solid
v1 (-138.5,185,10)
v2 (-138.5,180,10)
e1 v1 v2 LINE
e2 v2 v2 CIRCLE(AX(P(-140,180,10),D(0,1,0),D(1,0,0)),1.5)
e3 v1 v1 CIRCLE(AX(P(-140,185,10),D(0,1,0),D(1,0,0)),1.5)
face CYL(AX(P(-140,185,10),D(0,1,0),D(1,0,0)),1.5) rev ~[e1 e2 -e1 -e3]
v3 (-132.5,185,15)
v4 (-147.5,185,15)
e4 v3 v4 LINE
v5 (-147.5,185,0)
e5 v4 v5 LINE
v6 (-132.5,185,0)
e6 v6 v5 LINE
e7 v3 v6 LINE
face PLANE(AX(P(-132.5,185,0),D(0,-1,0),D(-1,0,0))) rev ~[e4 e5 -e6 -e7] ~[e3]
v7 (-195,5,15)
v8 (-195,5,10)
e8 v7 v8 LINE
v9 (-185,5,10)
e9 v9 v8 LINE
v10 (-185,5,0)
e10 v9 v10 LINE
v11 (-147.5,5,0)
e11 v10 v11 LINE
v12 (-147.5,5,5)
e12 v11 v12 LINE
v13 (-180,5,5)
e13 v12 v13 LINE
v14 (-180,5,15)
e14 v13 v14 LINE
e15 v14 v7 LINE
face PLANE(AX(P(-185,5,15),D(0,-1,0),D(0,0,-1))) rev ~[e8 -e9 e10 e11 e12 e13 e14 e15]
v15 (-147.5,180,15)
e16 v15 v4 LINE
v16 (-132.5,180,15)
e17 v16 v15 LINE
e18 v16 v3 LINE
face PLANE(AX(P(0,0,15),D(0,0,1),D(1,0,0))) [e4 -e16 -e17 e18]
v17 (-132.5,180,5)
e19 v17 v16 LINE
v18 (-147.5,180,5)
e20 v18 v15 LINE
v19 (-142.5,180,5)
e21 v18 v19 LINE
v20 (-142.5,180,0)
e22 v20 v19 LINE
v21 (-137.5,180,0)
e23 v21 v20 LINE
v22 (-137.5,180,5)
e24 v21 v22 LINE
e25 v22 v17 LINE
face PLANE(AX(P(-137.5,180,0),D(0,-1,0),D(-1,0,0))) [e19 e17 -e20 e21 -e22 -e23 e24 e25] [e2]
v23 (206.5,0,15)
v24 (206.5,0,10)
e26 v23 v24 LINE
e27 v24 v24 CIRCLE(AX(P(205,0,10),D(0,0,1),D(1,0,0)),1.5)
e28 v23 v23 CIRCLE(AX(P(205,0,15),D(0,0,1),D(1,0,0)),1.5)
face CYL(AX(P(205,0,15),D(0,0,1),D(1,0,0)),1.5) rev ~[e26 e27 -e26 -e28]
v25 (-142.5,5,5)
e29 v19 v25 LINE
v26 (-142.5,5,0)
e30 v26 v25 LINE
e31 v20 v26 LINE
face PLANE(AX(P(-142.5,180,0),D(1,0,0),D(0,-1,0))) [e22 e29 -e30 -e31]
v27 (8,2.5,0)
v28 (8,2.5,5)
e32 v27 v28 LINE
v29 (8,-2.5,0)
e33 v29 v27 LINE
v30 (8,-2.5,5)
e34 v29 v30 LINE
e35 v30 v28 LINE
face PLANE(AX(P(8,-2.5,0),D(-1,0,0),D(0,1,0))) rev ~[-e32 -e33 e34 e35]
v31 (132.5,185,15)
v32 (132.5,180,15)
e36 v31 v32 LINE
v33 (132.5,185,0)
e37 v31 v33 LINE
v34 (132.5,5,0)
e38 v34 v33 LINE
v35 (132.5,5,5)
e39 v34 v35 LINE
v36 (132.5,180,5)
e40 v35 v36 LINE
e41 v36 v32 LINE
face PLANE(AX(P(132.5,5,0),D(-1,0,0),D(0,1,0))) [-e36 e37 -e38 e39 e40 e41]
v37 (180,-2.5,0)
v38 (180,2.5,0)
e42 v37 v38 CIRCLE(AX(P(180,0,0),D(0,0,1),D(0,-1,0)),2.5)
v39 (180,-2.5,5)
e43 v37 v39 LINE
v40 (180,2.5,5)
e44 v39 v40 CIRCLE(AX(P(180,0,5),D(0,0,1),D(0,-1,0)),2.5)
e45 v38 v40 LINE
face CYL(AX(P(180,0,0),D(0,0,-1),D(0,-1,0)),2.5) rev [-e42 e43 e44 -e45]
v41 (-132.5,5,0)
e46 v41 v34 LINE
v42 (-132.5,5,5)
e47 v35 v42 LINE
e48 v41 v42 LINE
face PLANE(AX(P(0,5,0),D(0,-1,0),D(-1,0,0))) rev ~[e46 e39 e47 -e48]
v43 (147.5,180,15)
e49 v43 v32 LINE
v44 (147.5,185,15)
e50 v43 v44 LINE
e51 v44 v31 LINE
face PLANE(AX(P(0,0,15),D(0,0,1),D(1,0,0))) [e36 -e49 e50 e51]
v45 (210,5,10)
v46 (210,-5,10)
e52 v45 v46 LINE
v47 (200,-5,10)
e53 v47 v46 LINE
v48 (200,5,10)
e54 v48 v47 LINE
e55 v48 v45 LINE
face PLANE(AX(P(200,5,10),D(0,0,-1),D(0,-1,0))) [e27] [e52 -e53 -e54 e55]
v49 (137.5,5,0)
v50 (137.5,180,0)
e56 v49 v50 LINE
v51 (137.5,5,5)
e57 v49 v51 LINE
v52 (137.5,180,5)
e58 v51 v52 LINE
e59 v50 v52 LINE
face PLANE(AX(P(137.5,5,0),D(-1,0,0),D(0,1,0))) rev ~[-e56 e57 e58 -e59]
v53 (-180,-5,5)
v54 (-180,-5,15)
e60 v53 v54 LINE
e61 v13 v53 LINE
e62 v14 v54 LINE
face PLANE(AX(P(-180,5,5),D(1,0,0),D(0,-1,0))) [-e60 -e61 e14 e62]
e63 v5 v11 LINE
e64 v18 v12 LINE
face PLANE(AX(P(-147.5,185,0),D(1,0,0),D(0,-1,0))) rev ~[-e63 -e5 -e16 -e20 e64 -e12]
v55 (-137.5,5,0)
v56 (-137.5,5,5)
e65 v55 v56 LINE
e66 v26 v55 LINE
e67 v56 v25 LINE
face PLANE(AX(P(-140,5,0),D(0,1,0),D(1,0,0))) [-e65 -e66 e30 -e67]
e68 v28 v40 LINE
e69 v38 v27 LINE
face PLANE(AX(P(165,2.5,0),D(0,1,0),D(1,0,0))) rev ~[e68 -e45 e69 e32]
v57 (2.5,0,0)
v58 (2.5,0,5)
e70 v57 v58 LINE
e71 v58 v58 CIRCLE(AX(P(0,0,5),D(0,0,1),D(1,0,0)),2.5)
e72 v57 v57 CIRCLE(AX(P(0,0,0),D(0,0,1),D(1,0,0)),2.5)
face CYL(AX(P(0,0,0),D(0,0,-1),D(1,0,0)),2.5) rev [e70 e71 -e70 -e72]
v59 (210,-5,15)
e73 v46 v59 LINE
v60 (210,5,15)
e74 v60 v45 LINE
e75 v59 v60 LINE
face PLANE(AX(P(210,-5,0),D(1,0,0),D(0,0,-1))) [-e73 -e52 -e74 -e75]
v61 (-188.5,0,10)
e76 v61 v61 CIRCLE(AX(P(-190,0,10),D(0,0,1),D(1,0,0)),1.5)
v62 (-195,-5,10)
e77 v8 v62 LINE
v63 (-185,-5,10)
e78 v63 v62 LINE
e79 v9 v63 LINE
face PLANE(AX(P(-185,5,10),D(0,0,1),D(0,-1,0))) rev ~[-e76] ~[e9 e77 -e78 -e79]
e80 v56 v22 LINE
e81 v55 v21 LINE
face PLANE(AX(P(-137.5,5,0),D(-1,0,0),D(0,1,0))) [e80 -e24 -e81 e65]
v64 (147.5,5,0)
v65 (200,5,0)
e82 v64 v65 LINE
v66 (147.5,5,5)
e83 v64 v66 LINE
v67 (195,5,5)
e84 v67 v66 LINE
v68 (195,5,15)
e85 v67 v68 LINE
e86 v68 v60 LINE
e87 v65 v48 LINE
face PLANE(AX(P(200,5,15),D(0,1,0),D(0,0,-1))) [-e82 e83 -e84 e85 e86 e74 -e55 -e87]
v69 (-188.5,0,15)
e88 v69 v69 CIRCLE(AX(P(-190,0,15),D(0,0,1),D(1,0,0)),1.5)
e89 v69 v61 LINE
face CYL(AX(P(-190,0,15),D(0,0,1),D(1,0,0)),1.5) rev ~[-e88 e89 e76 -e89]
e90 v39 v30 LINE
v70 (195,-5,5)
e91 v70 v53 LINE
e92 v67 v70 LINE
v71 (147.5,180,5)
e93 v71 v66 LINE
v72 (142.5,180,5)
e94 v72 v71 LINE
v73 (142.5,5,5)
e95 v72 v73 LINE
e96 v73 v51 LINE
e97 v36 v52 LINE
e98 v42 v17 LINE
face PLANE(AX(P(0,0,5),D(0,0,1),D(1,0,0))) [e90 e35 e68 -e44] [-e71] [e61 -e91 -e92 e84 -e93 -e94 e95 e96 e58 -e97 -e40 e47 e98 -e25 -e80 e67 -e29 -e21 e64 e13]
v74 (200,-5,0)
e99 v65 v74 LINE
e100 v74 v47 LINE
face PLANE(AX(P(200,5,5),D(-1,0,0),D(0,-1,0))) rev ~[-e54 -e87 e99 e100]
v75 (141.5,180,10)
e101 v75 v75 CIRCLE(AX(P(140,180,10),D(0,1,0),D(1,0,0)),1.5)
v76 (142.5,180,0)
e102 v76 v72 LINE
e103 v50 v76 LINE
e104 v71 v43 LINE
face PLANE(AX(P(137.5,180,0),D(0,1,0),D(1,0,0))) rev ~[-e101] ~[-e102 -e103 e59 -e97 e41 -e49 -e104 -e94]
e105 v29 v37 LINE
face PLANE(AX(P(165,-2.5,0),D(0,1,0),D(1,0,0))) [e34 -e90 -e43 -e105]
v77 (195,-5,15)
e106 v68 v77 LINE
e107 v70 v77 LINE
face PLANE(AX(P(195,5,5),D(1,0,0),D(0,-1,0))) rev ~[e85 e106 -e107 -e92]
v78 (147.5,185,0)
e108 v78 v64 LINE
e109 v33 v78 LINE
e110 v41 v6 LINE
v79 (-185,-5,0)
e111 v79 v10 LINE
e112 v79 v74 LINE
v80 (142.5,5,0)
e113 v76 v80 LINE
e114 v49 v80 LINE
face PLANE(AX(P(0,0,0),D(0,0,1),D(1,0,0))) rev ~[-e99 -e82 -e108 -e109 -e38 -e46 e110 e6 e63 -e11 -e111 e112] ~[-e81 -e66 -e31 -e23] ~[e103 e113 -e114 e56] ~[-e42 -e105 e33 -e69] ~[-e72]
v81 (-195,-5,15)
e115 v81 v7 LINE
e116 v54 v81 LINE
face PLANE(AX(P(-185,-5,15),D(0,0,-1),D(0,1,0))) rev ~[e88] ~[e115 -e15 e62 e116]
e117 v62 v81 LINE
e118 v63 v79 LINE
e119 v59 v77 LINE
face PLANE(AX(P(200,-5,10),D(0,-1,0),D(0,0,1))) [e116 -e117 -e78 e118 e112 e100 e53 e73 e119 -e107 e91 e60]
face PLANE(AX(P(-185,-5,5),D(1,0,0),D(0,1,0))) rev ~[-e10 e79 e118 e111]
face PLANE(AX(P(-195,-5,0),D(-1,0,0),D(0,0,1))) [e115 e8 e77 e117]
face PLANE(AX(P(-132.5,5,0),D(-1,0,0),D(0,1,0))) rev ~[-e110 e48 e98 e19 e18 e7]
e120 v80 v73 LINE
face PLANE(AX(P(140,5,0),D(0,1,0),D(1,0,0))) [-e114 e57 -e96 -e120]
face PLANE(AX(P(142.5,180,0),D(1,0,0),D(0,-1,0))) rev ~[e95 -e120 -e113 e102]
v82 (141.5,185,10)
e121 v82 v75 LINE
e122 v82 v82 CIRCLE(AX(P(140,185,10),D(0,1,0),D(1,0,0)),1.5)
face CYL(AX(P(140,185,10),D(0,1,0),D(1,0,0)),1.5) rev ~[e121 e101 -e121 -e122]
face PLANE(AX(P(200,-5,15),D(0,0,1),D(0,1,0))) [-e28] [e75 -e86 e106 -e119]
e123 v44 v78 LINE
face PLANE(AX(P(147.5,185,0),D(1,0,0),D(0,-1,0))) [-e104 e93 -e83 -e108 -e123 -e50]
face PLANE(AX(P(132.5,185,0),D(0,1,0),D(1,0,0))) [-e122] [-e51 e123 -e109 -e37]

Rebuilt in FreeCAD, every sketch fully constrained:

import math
import FreeCAD as App
import Part
import Sketcher

V = App.Vector
Q = App.Units.Quantity


def add_polygon(sketch, points):
    """Adds a closed chain of lines whose ends are joined by coincident constraints."""
    first, n = sketch.GeometryCount, len(points)
    for a, b in zip(points, points[1:] + points[:1]):
        sketch.addGeometry(Part.LineSegment(App.Vector(*a, 0), App.Vector(*b, 0)), False)
    for i in range(n):
        sketch.addConstraint(Sketcher.Constraint("Coincident", first + i, 2, first + (i + 1) % n, 1))

doc = App.newDocument("Part")
body = doc.addObject("PartDesign::Body", "Body")

# Sketch on XY plane
sketch1 = body.newObject("Sketcher::SketchObject", "Sketch")
sketch1.AttachmentSupport = (doc.getObject("XY_Plane"), [""])
sketch1.MapMode = "FlatFace"
sketch1.addGeometry(Part.LineSegment(V(-165, -5, 0), V(180, -5, 0)), False)  # 0
sketch1.addGeometry(Part.ArcOfCircle(Part.Circle(V(180, 0, 0), V(0, 0, 1), 5), math.radians(-90), math.radians(90)), False)  # 1
sketch1.addGeometry(Part.LineSegment(V(180, 5, 0), V(147.5, 5, 0)), False)  # 2
sketch1.addGeometry(Part.LineSegment(V(147.5, 5, 0), V(147.5, 185, 0)), False)  # 3
sketch1.addGeometry(Part.LineSegment(V(147.5, 185, 0), V(132.5, 185, 0)), False)  # 4
sketch1.addGeometry(Part.LineSegment(V(132.5, 185, 0), V(132.5, 5, 0)), False)  # 5
sketch1.addGeometry(Part.LineSegment(V(132.5, 5, 0), V(-132.5, 5, 0)), False)  # 6
sketch1.addGeometry(Part.LineSegment(V(-132.5, 5, 0), V(-132.5, 185, 0)), False)  # 7
sketch1.addGeometry(Part.LineSegment(V(-132.5, 185, 0), V(-147.5, 185, 0)), False)  # 8
sketch1.addGeometry(Part.LineSegment(V(-147.5, 185, 0), V(-147.5, 5, 0)), False)  # 9
sketch1.addGeometry(Part.LineSegment(V(-147.5, 5, 0), V(-165, 5, 0)), False)  # 10
sketch1.addGeometry(Part.ArcOfCircle(Part.Circle(V(-165, 0, 0), V(0, 0, 1), 5), math.radians(90), math.radians(270)), False)  # 11
sketch1.addGeometry(Part.Circle(V(0, 0, 0), V(0, 0, 1), 2.5), False)  # 12
sketch1.addGeometry(Part.LineSegment(V(180, -2.5, 0), V(8, -2.5, 0)), False)  # 13
sketch1.addGeometry(Part.LineSegment(V(8, -2.5, 0), V(8, 2.5, 0)), False)  # 14
sketch1.addGeometry(Part.LineSegment(V(8, 2.5, 0), V(180, 2.5, 0)), False)  # 15
sketch1.addGeometry(Part.ArcOfCircle(Part.Circle(V(180, 0, 0), V(0, 0, 1), 2.5), math.radians(-90), math.radians(90)), False)  # 16
add_polygon(sketch1, [(-137.5, 5), (-142.5, 5), (-142.5, 180), (-137.5, 180)])  # lines 17-20
add_polygon(sketch1, [(142.5, 5), (137.5, 5), (137.5, 180), (142.5, 180)])  # lines 21-24
sketch1.addConstraint(Sketcher.Constraint("Tangent", 0, 2, 1, 1))
sketch1.addConstraint(Sketcher.Constraint("Tangent", 1, 2, 2, 1))
sketch1.addConstraint(Sketcher.Constraint("Coincident", 2, 2, 3, 1))
sketch1.addConstraint(Sketcher.Constraint("Coincident", 3, 2, 4, 1))
sketch1.addConstraint(Sketcher.Constraint("Coincident", 4, 2, 5, 1))
sketch1.addConstraint(Sketcher.Constraint("Coincident", 5, 2, 6, 1))
sketch1.addConstraint(Sketcher.Constraint("Coincident", 6, 2, 7, 1))
sketch1.addConstraint(Sketcher.Constraint("Coincident", 7, 2, 8, 1))
sketch1.addConstraint(Sketcher.Constraint("Coincident", 8, 2, 9, 1))
sketch1.addConstraint(Sketcher.Constraint("Coincident", 9, 2, 10, 1))
sketch1.addConstraint(Sketcher.Constraint("Tangent", 10, 2, 11, 1))
sketch1.addConstraint(Sketcher.Constraint("Tangent", 11, 2, 0, 1))
sketch1.addConstraint(Sketcher.Constraint("Coincident", 13, 2, 14, 1))
sketch1.addConstraint(Sketcher.Constraint("Coincident", 14, 2, 15, 1))
sketch1.addConstraint(Sketcher.Constraint("Tangent", 15, 2, 16, 2))
sketch1.addConstraint(Sketcher.Constraint("Tangent", 16, 1, 13, 1))
sketch1.addConstraint(Sketcher.Constraint("Horizontal", 0))
sketch1.addConstraint(Sketcher.Constraint("Horizontal", 2))
sketch1.addConstraint(Sketcher.Constraint("Vertical", 3))
sketch1.addConstraint(Sketcher.Constraint("Horizontal", 4))
sketch1.addConstraint(Sketcher.Constraint("Vertical", 5))
sketch1.addConstraint(Sketcher.Constraint("Horizontal", 6))
sketch1.addConstraint(Sketcher.Constraint("Vertical", 7))
sketch1.addConstraint(Sketcher.Constraint("Horizontal", 8))
sketch1.addConstraint(Sketcher.Constraint("Vertical", 9))
sketch1.addConstraint(Sketcher.Constraint("Horizontal", 10))
sketch1.addConstraint(Sketcher.Constraint("Horizontal", 13))
sketch1.addConstraint(Sketcher.Constraint("Vertical", 14))
sketch1.addConstraint(Sketcher.Constraint("Horizontal", 15))
sketch1.addConstraint(Sketcher.Constraint("Horizontal", 17))
sketch1.addConstraint(Sketcher.Constraint("Vertical", 18))
sketch1.addConstraint(Sketcher.Constraint("Horizontal", 19))
sketch1.addConstraint(Sketcher.Constraint("Vertical", 20))
sketch1.addConstraint(Sketcher.Constraint("Horizontal", 21))
sketch1.addConstraint(Sketcher.Constraint("Vertical", 22))
sketch1.addConstraint(Sketcher.Constraint("Horizontal", 23))
sketch1.addConstraint(Sketcher.Constraint("Vertical", 24))
sketch1.addConstraint(Sketcher.Constraint("Coincident", 12, 3, -1, 1))
sketch1.addConstraint(Sketcher.Constraint("Coincident", 16, 3, 1, 3))
sketch1.addConstraint(Sketcher.Constraint("Equal", 1, 11))
sketch1.addConstraint(Sketcher.Constraint("Equal", 12, 16))
sketch1.addConstraint(Sketcher.Constraint("Symmetric", 4, 2, 7, 2, -2))
sketch1.addConstraint(Sketcher.Constraint("Symmetric", 20, 2, 21, 2, -2))
sketch1.addConstraint(Sketcher.Constraint("Symmetric", 18, 2, 23, 2, -2))
sketch1.addConstraint(Sketcher.Constraint("PointOnObject", 1, 3, -1))
sketch1.addConstraint(Sketcher.Constraint("Horizontal", 2, 2, 5, 2))
sketch1.addConstraint(Sketcher.Constraint("Horizontal", 10, 2, 17, 2))
sketch1.addConstraint(Sketcher.Constraint("Equal", 4, 8))
sketch1.addConstraint(Sketcher.Constraint("Equal", 23, 14))
sketch1.addConstraint(Sketcher.Constraint("Diameter", 12, Q("5 mm")))
sketch1.addConstraint(Sketcher.Constraint("Radius", 1, Q("5 mm")))
sketch1.addConstraint(Sketcher.Constraint("DistanceX", 4, 2, 4, 1, Q("15 mm")))
sketch1.addConstraint(Sketcher.Constraint("DistanceY", 3, 1, 3, 2, Q("180 mm")))
sketch1.addConstraint(Sketcher.Constraint("DistanceY", 18, 1, 18, 2, Q("175 mm")))
sketch1.addConstraint(Sketcher.Constraint("DistanceX", -1, 1, 1, 3, Q("180 mm")))
sketch1.addConstraint(Sketcher.Constraint("DistanceX", 9, 2, 17, 2, Q("5 mm")))
sketch1.addConstraint(Sketcher.Constraint("DistanceX", 0, 1, 0, 2, Q("345 mm")))
sketch1.addConstraint(Sketcher.Constraint("DistanceX", 6, 2, 6, 1, Q("265 mm")))
sketch1.addConstraint(Sketcher.Constraint("DistanceX", 13, 2, 13, 1, Q("172 mm")))
pad1 = body.newObject("PartDesign::Pad", "Pad")
pad1.Profile = sketch1
pad1.Length = 5

# Sketch on XY plane
sketch2 = body.newObject("Sketcher::SketchObject", "Sketch001")
sketch2.AttachmentSupport = (doc.getObject("XY_Plane"), [""])
sketch2.MapMode = "FlatFace"
sketch2.AttachmentOffset = App.Placement(V(0, 0, 5), App.Rotation())
add_polygon(sketch2, [(-132, 180), (-132, 185), (-148, 185), (-148, 180)])  # lines 0-3
add_polygon(sketch2, [(132, 185), (132, 180), (148, 180), (148, 185)])  # lines 4-7
sketch2.addConstraint(Sketcher.Constraint("Vertical", 0))
sketch2.addConstraint(Sketcher.Constraint("Horizontal", 1))
sketch2.addConstraint(Sketcher.Constraint("Vertical", 2))
sketch2.addConstraint(Sketcher.Constraint("Horizontal", 3))
sketch2.addConstraint(Sketcher.Constraint("Vertical", 4))
sketch2.addConstraint(Sketcher.Constraint("Horizontal", 5))
sketch2.addConstraint(Sketcher.Constraint("Vertical", 6))
sketch2.addConstraint(Sketcher.Constraint("Horizontal", 7))
sketch2.addConstraint(Sketcher.Constraint("Symmetric", 3, 2, 4, 2, -2))
sketch2.addConstraint(Sketcher.Constraint("Symmetric", 1, 2, 6, 2, -2))
sketch2.addConstraint(Sketcher.Constraint("DistanceY", 0, 1, 0, 2, Q("5 mm")))
sketch2.addConstraint(Sketcher.Constraint("DistanceX", 1, 2, 1, 1, Q("15 mm")))
sketch2.addConstraint(Sketcher.Constraint("DistanceY", -1, 1, 0, 2, Q("185 mm")))
sketch2.addConstraint(Sketcher.Constraint("DistanceX", 3, 2, 4, 2, Q("265 mm")))
pad2 = body.newObject("PartDesign::Pad", "Pad001")
pad2.Profile = sketch2
pad2.Length = 10

# Sketch on XY plane
sketch3 = body.newObject("Sketcher::SketchObject", "Sketch002")
sketch3.AttachmentSupport = (doc.getObject("XY_Plane"), [""])
sketch3.MapMode = "FlatFace"
sketch3.AttachmentOffset = App.Placement(V(0, 0, 5), App.Rotation())
sketch3.addGeometry(Part.LineSegment(V(200, 5, 0), V(180, 5, 0)), False)  # 0
sketch3.addGeometry(Part.ArcOfCircle(Part.Circle(V(180, 0, 0), V(0, 0, 1), 5), math.radians(-90), math.radians(90)), False)  # 1
sketch3.addGeometry(Part.LineSegment(V(180, -5, 0), V(200, -5, 0)), False)  # 2
sketch3.addGeometry(Part.LineSegment(V(200, -5, 0), V(200, 5, 0)), False)  # 3
add_polygon(sketch3, [(-185, -5), (-165, -5), (-165, 5), (-185, 5)])  # lines 4-7
sketch3.addConstraint(Sketcher.Constraint("Tangent", 0, 2, 1, 2))
sketch3.addConstraint(Sketcher.Constraint("Tangent", 1, 1, 2, 1))
sketch3.addConstraint(Sketcher.Constraint("Coincident", 2, 2, 3, 1))
sketch3.addConstraint(Sketcher.Constraint("Coincident", 3, 2, 0, 1))
sketch3.addConstraint(Sketcher.Constraint("Horizontal", 0))
sketch3.addConstraint(Sketcher.Constraint("Horizontal", 2))
sketch3.addConstraint(Sketcher.Constraint("Vertical", 3))
sketch3.addConstraint(Sketcher.Constraint("Horizontal", 4))
sketch3.addConstraint(Sketcher.Constraint("Vertical", 5))
sketch3.addConstraint(Sketcher.Constraint("Horizontal", 6))
sketch3.addConstraint(Sketcher.Constraint("Vertical", 7))
sketch3.addConstraint(Sketcher.Constraint("PointOnObject", 1, 3, -1))
sketch3.addConstraint(Sketcher.Constraint("Horizontal", 2, 2, 4, 2))
sketch3.addConstraint(Sketcher.Constraint("Horizontal", 3, 2, 5, 2))
sketch3.addConstraint(Sketcher.Constraint("Equal", 2, 4))
sketch3.addConstraint(Sketcher.Constraint("DistanceX", 0, 2, 0, 1, Q("20 mm")))
sketch3.addConstraint(Sketcher.Constraint("Radius", 1, Q("5 mm")))
sketch3.addConstraint(Sketcher.Constraint("DistanceX", -1, 1, 1, 3, Q("180 mm")))
sketch3.addConstraint(Sketcher.Constraint("DistanceX", 4, 2, -1, 1, Q("165 mm")))
pad3 = body.newObject("PartDesign::Pad", "Pad002")
pad3.Profile = sketch3
pad3.Length = 5
pad3.Reversed = True

# Sketch on XY plane
sketch4 = body.newObject("Sketcher::SketchObject", "Sketch003")
sketch4.AttachmentSupport = (doc.getObject("XY_Plane"), [""])
sketch4.MapMode = "FlatFace"
sketch4.AttachmentOffset = App.Placement(V(0, 0, 5), App.Rotation())
add_polygon(sketch4, [(-180, -5), (-180, 5), (-185, 5), (-185, -5)])  # lines 0-3
add_polygon(sketch4, [(195, 5), (195, -5), (200, -5), (200, 5)])  # lines 4-7
sketch4.addConstraint(Sketcher.Constraint("Vertical", 0))
sketch4.addConstraint(Sketcher.Constraint("Horizontal", 1))
sketch4.addConstraint(Sketcher.Constraint("Vertical", 2))
sketch4.addConstraint(Sketcher.Constraint("Horizontal", 3))
sketch4.addConstraint(Sketcher.Constraint("Vertical", 4))
sketch4.addConstraint(Sketcher.Constraint("Horizontal", 5))
sketch4.addConstraint(Sketcher.Constraint("Vertical", 6))
sketch4.addConstraint(Sketcher.Constraint("Horizontal", 7))
sketch4.addConstraint(Sketcher.Constraint("Horizontal", 3, 2, 4, 2))
sketch4.addConstraint(Sketcher.Constraint("Horizontal", 1, 2, 6, 2))
sketch4.addConstraint(Sketcher.Constraint("Equal", 3, 5))
sketch4.addConstraint(Sketcher.Constraint("DistanceX", 1, 2, 1, 1, Q("5 mm")))
sketch4.addConstraint(Sketcher.Constraint("DistanceY", 0, 1, 0, 2, Q("10 mm")))
sketch4.addConstraint(Sketcher.Constraint("DistanceY", -1, 1, 0, 2, Q("5 mm")))
sketch4.addConstraint(Sketcher.Constraint("DistanceX", 0, 2, -1, 1, Q("180 mm")))
sketch4.addConstraint(Sketcher.Constraint("DistanceX", -1, 1, 4, 2, Q("195 mm")))
pad4 = body.newObject("PartDesign::Pad", "Pad003")
pad4.Profile = sketch4
pad4.Length = 10

# Sketch on YZ plane
sketch5 = body.newObject("Sketcher::SketchObject", "Sketch004")
sketch5.AttachmentSupport = (doc.getObject("YZ_Plane"), [""])
sketch5.MapMode = "FlatFace"
sketch5.AttachmentOffset = App.Placement(V(0, 0, -185), App.Rotation())
add_polygon(sketch5, [(-5, 10), (-5, 15), (5, 15), (5, 10)])  # lines 0-3
sketch5.addConstraint(Sketcher.Constraint("Vertical", 0))
sketch5.addConstraint(Sketcher.Constraint("Horizontal", 1))
sketch5.addConstraint(Sketcher.Constraint("Vertical", 2))
sketch5.addConstraint(Sketcher.Constraint("Horizontal", 3))
sketch5.addConstraint(Sketcher.Constraint("DistanceY", 0, 1, 0, 2, Q("5 mm")))
sketch5.addConstraint(Sketcher.Constraint("DistanceX", 0, 2, -1, 1, Q("5 mm")))
sketch5.addConstraint(Sketcher.Constraint("DistanceX", -1, 1, 1, 2, Q("5 mm")))
sketch5.addConstraint(Sketcher.Constraint("DistanceY", -1, 1, 0, 2, Q("15 mm")))
pad5 = body.newObject("PartDesign::Pad", "Pad004")
pad5.Profile = sketch5
pad5.Length = 10
pad5.Reversed = True

# Sketch on YZ plane
sketch6 = body.newObject("Sketcher::SketchObject", "Sketch005")
sketch6.AttachmentSupport = (doc.getObject("YZ_Plane"), [""])
sketch6.MapMode = "FlatFace"
sketch6.AttachmentOffset = App.Placement(V(0, 0, 200), App.Rotation())
add_polygon(sketch6, [(-5, 10), (5, 10), (5, 15), (-5, 15)])  # lines 0-3
sketch6.addConstraint(Sketcher.Constraint("Horizontal", 0))
sketch6.addConstraint(Sketcher.Constraint("Vertical", 1))
sketch6.addConstraint(Sketcher.Constraint("Horizontal", 2))
sketch6.addConstraint(Sketcher.Constraint("Vertical", 3))
sketch6.addConstraint(Sketcher.Constraint("DistanceX", 0, 1, 0, 2, Q("10 mm")))
sketch6.addConstraint(Sketcher.Constraint("DistanceY", 1, 1, 1, 2, Q("5 mm")))
sketch6.addConstraint(Sketcher.Constraint("DistanceX", -1, 1, 0, 2, Q("5 mm")))
sketch6.addConstraint(Sketcher.Constraint("DistanceY", -1, 1, 0, 2, Q("10 mm")))
pad6 = body.newObject("PartDesign::Pad", "Pad005")
pad6.Profile = sketch6
pad6.Length = 10

# Sketch on XY plane
sketch7 = body.newObject("Sketcher::SketchObject", "Sketch006")
sketch7.AttachmentSupport = (doc.getObject("XY_Plane"), [""])
sketch7.MapMode = "FlatFace"
sketch7.AttachmentOffset = App.Placement(V(0, 0, 15), App.Rotation())
sketch7.addGeometry(Part.Circle(V(-190, 0, 0), V(0, 0, 1), 1.5), False)
sketch7.addGeometry(Part.Circle(V(205, 0, 0), V(0, 0, 1), 1.5), False)
sketch7.addConstraint(Sketcher.Constraint("Equal", 0, 1))
sketch7.addConstraint(Sketcher.Constraint("PointOnObject", 0, 3, -1))
sketch7.addConstraint(Sketcher.Constraint("PointOnObject", 1, 3, -1))
sketch7.addConstraint(Sketcher.Constraint("Diameter", 0, Q("3 mm")))
sketch7.addConstraint(Sketcher.Constraint("DistanceX", 0, 3, -1, 1, Q("190 mm")))
sketch7.addConstraint(Sketcher.Constraint("DistanceX", -1, 1, 1, 3, Q("205 mm")))
pocket1 = body.newObject("PartDesign::Pocket", "Pocket")
pocket1.Profile = sketch7
pocket1.Length = 10

# Sketch on XZ plane
sketch8 = body.newObject("Sketcher::SketchObject", "Sketch007")
sketch8.AttachmentSupport = (doc.getObject("XZ_Plane"), [""])
sketch8.MapMode = "FlatFace"
sketch8.AttachmentOffset = App.Placement(V(0, 0, -185), App.Rotation())
sketch8.addGeometry(Part.Circle(V(-140, 10, 0), V(0, 0, 1), 1.5), False)
sketch8.addGeometry(Part.Circle(V(140, 10, 0), V(0, 0, 1), 1.5), False)
sketch8.addConstraint(Sketcher.Constraint("Equal", 0, 1))
sketch8.addConstraint(Sketcher.Constraint("Symmetric", 0, 3, 1, 3, -2))
sketch8.addConstraint(Sketcher.Constraint("Diameter", 0, Q("3 mm")))
sketch8.addConstraint(Sketcher.Constraint("DistanceX", 0, 3, -1, 1, Q("140 mm")))
sketch8.addConstraint(Sketcher.Constraint("DistanceY", -1, 1, 0, 3, Q("10 mm")))
pocket2 = body.newObject("PartDesign::Pocket", "Pocket001")
pocket2.Profile = sketch8
pocket2.Length = 10
pocket2.Reversed = True

doc.recompute()
